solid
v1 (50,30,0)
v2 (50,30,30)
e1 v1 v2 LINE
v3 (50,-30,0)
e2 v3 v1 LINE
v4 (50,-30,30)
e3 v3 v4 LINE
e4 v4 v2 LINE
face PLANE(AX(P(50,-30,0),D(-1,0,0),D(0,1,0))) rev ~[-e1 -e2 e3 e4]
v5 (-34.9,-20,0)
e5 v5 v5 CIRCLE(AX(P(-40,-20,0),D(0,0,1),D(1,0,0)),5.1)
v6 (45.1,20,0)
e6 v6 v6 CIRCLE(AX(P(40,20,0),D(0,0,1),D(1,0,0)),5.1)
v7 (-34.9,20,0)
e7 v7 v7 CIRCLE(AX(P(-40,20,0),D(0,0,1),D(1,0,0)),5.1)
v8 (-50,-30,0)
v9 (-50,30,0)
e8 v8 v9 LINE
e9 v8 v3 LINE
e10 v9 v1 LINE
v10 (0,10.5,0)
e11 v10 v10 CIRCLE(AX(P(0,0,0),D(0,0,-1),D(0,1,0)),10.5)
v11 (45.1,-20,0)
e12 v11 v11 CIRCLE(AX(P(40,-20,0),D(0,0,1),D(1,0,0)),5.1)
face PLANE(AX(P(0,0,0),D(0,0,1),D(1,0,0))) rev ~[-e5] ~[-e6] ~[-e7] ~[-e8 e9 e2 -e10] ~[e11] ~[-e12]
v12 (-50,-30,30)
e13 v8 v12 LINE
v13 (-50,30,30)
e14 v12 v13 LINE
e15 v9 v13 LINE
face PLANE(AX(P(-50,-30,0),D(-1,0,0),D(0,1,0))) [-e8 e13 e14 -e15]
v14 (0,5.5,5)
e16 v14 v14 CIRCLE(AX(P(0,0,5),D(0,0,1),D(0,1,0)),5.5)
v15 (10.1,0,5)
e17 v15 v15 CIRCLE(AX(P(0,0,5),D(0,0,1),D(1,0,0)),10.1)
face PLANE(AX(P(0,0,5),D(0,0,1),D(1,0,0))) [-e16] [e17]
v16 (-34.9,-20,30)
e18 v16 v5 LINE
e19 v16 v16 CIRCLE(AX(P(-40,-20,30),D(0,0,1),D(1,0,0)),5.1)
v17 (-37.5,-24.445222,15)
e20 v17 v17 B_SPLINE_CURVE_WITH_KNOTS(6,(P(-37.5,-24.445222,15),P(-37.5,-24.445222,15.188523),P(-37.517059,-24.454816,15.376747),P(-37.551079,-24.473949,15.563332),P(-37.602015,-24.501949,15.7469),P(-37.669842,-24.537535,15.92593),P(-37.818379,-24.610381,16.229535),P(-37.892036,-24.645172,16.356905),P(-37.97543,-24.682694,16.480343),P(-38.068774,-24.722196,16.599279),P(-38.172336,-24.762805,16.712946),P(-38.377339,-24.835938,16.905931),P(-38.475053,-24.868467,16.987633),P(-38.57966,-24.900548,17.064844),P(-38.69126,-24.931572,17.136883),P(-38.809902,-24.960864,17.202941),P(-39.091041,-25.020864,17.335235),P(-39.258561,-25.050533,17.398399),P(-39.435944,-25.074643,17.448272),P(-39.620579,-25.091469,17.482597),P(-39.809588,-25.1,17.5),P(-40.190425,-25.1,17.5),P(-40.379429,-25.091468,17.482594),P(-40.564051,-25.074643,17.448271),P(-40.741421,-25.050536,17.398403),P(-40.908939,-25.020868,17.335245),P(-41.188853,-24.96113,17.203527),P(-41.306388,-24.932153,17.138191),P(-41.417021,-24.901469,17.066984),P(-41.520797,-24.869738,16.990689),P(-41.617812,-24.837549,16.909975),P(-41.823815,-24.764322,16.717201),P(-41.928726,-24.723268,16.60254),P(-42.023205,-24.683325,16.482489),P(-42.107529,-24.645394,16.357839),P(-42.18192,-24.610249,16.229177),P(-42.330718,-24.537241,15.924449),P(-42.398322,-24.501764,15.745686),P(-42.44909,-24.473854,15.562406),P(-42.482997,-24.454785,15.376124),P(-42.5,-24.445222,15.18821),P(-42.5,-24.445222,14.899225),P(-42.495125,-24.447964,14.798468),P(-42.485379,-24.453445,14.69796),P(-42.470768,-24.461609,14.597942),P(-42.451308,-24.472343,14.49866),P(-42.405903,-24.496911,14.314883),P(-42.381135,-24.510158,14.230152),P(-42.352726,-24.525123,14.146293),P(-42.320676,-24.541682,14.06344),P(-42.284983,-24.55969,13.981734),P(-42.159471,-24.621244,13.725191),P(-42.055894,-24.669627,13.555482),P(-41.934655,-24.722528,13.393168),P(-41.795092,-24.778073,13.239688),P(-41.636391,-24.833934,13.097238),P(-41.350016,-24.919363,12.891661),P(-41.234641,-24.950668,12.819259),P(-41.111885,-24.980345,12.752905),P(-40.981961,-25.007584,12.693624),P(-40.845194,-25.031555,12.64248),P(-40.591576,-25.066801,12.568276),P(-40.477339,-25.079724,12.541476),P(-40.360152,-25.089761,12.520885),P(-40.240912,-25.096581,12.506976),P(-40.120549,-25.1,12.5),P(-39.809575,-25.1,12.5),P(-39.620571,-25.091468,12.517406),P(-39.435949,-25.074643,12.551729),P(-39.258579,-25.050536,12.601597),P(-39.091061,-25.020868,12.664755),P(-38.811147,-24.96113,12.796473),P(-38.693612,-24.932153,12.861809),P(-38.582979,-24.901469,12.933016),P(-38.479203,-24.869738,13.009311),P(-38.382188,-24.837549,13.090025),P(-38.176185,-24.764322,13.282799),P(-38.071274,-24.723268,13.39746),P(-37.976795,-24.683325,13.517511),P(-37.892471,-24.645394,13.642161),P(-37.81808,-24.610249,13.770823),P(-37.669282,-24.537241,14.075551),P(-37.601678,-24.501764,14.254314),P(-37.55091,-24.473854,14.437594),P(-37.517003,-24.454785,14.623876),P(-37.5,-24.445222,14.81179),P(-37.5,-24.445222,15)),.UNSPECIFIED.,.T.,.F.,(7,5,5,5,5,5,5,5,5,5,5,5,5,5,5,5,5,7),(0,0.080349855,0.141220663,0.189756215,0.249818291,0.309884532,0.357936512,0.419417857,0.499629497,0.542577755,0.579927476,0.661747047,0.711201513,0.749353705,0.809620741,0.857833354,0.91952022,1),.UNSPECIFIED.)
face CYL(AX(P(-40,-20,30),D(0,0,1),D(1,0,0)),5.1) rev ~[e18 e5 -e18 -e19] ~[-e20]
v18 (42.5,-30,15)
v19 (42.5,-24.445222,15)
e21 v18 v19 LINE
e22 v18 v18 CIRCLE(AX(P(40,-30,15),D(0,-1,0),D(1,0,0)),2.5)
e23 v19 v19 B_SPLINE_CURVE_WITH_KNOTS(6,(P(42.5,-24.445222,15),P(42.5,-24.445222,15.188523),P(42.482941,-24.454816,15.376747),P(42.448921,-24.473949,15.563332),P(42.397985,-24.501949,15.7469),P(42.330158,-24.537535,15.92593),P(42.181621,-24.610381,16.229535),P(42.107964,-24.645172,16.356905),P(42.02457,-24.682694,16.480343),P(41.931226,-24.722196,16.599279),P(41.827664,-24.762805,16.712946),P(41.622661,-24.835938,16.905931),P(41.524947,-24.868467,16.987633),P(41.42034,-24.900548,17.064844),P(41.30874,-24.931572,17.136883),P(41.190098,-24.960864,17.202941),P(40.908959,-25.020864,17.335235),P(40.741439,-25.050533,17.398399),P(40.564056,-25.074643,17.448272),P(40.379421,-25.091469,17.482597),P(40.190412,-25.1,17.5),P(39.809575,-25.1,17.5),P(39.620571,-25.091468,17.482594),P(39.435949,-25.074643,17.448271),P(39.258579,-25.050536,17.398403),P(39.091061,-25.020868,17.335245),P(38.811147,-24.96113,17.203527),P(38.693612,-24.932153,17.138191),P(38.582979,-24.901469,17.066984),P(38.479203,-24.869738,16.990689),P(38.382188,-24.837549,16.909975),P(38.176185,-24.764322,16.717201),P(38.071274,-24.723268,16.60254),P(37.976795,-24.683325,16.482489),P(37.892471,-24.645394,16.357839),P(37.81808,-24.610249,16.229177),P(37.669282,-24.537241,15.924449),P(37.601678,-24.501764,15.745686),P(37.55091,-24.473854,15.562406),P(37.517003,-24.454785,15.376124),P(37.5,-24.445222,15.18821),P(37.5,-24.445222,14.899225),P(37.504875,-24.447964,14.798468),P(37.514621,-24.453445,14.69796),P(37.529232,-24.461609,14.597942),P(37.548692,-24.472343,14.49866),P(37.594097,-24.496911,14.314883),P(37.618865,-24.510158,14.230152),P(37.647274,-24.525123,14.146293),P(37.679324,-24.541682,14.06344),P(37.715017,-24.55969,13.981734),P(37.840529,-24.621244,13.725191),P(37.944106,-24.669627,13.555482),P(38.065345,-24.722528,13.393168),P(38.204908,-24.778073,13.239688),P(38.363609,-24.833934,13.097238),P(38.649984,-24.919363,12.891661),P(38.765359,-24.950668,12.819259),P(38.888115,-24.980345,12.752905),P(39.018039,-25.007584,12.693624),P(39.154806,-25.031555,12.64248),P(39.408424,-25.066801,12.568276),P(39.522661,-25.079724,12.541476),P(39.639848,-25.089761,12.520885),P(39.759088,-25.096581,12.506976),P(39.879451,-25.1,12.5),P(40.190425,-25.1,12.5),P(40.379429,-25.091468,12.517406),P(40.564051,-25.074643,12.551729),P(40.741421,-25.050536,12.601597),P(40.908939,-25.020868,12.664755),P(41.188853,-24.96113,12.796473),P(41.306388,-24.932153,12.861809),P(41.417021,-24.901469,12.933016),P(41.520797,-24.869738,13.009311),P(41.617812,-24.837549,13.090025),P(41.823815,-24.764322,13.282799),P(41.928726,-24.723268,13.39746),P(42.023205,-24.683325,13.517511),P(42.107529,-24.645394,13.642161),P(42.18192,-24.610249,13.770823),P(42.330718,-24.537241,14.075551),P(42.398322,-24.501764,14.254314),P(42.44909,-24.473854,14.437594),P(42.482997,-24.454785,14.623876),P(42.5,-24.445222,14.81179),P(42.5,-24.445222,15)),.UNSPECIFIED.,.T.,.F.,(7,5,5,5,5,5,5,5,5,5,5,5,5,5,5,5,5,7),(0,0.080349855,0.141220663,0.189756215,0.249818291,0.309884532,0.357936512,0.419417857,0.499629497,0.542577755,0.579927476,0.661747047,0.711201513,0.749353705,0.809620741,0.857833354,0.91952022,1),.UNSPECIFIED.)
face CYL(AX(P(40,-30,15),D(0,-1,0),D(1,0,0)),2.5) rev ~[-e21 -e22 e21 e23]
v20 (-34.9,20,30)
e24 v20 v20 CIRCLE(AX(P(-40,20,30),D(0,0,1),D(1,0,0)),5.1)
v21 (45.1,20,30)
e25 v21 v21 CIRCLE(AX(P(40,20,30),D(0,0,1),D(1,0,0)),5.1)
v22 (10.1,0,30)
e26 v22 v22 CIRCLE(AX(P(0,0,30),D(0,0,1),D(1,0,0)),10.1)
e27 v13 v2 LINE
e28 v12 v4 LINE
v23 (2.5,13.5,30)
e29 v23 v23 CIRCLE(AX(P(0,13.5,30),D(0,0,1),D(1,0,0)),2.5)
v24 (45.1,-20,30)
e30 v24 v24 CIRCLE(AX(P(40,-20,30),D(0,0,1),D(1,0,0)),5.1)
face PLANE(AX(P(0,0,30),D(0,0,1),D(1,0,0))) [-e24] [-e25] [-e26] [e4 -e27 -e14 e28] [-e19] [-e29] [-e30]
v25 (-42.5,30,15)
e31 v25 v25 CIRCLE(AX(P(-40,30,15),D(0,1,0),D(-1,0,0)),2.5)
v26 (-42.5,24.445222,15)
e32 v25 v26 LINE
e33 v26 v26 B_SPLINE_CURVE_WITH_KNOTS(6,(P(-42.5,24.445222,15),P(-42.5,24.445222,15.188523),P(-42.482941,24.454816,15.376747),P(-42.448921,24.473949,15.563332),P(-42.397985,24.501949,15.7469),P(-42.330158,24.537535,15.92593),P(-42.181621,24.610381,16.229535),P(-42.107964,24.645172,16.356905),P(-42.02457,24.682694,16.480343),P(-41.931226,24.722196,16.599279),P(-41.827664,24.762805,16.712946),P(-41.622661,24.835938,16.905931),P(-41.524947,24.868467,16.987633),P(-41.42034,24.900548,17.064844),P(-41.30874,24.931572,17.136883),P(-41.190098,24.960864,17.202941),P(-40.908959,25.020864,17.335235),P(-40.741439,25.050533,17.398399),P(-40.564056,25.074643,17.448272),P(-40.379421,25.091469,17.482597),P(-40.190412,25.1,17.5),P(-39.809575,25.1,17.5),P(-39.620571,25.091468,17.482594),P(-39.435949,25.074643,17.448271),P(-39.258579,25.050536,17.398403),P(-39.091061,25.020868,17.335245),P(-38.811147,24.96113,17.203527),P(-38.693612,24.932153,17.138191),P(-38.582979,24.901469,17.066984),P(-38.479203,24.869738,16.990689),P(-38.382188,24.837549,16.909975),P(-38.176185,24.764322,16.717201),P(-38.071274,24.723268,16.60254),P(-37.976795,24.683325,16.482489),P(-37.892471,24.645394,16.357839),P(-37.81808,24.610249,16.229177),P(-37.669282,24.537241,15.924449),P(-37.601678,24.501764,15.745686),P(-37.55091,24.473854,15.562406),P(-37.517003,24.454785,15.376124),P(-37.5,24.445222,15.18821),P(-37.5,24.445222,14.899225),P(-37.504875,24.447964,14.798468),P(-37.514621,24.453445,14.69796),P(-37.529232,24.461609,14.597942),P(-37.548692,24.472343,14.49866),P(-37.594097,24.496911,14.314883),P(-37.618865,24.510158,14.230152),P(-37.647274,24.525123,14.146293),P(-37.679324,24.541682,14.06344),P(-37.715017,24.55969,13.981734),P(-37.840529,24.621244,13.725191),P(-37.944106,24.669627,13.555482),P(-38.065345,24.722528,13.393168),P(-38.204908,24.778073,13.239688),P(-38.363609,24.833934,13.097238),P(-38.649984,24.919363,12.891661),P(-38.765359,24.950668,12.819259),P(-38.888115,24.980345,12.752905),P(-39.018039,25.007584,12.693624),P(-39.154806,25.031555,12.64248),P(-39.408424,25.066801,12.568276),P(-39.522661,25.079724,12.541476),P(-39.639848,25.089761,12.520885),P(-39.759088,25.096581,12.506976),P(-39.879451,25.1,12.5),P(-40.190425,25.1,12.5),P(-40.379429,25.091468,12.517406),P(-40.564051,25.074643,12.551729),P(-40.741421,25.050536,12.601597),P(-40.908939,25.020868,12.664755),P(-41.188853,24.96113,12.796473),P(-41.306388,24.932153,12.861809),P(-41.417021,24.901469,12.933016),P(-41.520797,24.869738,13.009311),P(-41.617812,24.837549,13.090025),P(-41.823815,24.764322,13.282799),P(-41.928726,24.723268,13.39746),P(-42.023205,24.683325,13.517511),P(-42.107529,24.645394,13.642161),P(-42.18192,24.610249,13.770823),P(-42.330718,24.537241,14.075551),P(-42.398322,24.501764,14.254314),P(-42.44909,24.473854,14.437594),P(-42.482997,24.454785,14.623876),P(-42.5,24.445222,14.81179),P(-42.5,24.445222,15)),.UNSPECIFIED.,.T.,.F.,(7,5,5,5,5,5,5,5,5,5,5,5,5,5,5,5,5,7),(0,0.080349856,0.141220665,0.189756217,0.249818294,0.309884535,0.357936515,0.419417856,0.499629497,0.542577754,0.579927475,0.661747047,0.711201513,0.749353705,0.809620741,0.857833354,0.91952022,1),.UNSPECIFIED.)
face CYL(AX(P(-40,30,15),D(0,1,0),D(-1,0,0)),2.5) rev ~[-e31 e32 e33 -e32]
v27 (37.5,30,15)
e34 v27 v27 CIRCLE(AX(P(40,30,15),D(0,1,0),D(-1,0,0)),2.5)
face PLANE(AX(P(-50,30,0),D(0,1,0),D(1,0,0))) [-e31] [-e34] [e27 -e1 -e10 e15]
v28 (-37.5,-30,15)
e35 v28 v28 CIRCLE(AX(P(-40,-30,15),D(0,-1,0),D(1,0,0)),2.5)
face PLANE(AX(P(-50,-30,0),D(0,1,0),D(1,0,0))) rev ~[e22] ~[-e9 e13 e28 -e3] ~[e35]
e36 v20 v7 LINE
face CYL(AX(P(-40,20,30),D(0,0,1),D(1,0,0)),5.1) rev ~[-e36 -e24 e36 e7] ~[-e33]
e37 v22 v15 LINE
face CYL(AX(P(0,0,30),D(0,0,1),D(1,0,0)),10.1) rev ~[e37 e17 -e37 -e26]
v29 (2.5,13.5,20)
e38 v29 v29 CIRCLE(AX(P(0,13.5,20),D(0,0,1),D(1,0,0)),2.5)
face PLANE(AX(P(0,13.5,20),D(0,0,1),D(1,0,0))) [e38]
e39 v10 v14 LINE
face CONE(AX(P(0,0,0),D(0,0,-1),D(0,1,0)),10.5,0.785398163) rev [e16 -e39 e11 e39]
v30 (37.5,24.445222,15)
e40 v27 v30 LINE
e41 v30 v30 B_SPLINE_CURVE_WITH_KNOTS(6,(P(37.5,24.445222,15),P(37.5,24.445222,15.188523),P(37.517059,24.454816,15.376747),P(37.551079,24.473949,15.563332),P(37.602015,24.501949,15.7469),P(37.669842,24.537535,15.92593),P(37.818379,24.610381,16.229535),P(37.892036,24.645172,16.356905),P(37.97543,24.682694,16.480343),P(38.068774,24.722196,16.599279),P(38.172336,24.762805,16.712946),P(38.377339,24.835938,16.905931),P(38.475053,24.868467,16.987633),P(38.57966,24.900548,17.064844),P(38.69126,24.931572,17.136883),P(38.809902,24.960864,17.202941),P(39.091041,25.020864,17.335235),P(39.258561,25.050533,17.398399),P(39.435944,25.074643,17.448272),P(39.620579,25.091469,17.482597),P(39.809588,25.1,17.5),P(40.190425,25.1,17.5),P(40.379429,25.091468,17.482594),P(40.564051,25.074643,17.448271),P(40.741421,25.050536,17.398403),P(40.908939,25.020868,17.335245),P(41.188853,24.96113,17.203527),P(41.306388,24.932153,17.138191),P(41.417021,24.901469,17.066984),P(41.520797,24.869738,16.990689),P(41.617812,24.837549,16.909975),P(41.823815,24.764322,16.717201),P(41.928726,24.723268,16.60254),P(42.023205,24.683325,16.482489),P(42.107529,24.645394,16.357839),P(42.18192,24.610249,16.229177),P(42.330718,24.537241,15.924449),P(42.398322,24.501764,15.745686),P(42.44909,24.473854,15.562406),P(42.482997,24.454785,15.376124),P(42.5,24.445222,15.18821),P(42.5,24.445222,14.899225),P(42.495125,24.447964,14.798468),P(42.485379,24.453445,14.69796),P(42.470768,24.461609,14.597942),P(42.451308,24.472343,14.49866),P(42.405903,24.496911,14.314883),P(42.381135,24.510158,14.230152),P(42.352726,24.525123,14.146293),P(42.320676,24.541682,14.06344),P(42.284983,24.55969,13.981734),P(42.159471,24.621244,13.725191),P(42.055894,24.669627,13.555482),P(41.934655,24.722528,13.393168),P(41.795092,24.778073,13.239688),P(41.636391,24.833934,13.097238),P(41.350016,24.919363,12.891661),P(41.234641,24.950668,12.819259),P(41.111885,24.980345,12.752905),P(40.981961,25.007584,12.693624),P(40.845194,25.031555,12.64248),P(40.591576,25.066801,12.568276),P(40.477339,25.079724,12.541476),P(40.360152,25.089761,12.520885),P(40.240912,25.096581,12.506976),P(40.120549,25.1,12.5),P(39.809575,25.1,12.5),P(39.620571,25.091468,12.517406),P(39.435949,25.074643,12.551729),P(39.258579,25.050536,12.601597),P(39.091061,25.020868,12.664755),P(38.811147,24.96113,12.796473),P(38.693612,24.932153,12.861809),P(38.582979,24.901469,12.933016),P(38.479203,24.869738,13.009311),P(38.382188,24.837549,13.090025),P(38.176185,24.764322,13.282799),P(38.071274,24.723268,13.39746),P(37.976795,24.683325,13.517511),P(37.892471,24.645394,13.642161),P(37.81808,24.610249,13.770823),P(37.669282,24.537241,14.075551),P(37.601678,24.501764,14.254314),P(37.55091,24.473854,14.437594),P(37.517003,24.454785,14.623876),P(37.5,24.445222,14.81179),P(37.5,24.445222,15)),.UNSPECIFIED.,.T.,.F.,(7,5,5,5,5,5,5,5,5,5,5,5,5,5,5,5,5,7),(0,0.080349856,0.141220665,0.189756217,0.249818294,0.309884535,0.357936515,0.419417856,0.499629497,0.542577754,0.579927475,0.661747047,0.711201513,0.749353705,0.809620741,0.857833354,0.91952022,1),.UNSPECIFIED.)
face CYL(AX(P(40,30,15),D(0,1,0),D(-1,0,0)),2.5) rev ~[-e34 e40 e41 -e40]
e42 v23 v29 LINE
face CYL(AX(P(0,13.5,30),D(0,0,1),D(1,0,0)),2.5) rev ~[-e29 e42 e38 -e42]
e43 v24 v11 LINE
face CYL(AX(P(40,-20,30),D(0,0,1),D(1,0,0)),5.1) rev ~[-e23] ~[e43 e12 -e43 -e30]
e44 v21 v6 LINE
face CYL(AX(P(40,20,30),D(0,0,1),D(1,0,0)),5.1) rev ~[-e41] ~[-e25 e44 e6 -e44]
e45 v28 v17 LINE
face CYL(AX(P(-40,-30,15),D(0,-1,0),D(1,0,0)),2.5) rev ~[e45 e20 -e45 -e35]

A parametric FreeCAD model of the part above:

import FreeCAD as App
import Part
import Sketcher
from FreeCAD import Vector
Q = App.Units.Quantity


def add_polygon(sketch, points):
    """Adds a closed chain of lines whose ends are joined by coincident constraints."""
    first, n = sketch.GeometryCount, len(points)
    for a, b in zip(points, points[1:] + points[:1]):
        sketch.addGeometry(Part.LineSegment(App.Vector(*a, 0), App.Vector(*b, 0)), False)
    for i in range(n):
        sketch.addConstraint(Sketcher.Constraint("Coincident", first + i, 2, first + (i + 1) % n, 1))

doc = App.newDocument("Part")
body = doc.addObject("PartDesign::Body", "Body")

# Sketch on XY plane
sketch1 = doc.addObject("Sketcher::SketchObject", "Sketch")
body.addObject(sketch1)
sketch1.AttachmentSupport = (doc.XY_Plane, [""])
sketch1.MapMode = "FlatFace"
add_polygon(sketch1, [(-50, 30), (-50, -30), (50, -30), (50, 30)])  # lines 0-3
sketch1.addConstraint([
    Sketcher.Constraint("Vertical", 0),
    Sketcher.Constraint("Horizontal", 1),
    Sketcher.Constraint("Vertical", 2),
    Sketcher.Constraint("Horizontal", 3),
    Sketcher.Constraint("Symmetric", 0, 2, 2, 2, -1, 1),
    Sketcher.Constraint("DistanceX", 1, 1, 1, 2, Q("100 mm")),
    Sketcher.Constraint("DistanceY", 0, 2, 0, 1, Q("60 mm")),
])
pad1 = doc.addObject("PartDesign::Pad", "Pad")
body.addObject(pad1)
pad1.Profile = sketch1
pad1.Length = 30

# Sketch on XY plane
sketch2 = doc.addObject("Sketcher::SketchObject", "Sketch001")
body.addObject(sketch2)
sketch2.AttachmentSupport = (doc.XY_Plane, [""])
sketch2.MapMode = "FlatFace"
sketch2.AttachmentOffset = App.Placement(Vector(0, 0, 30), App.Rotation())
sketch2.addGeometry(Part.Circle(Vector(0, 0, 0), Vector(0, 0, 1), 10), False)
sketch2.addConstraint([
    Sketcher.Constraint("Coincident", 0, 3, -1, 1),
    Sketcher.Constraint("Diameter", 0, Q("20.2 mm")),
])
pocket1 = doc.addObject("PartDesign::Pocket", "Pocket")
body.addObject(pocket1)
pocket1.Profile = sketch2
pocket1.Length = 25

# Sketch on XY plane
sketch3 = doc.addObject("Sketcher::SketchObject", "Sketch002")
body.addObject(sketch3)
sketch3.AttachmentSupport = (doc.XY_Plane, [""])
sketch3.MapMode = "FlatFace"
sketch3.AttachmentOffset = App.Placement(Vector(0, 0, 30), App.Rotation())
sketch3.addGeometry([
    Part.Circle(Vector(-40, 20, 0), Vector(0, 0, 1), 5),
    Part.Circle(Vector(-40, -20, 0), Vector(0, 0, 1), 5),
    Part.Circle(Vector(40, 20, 0), Vector(0, 0, 1), 5),
    Part.Circle(Vector(40, -20, 0), Vector(0, 0, 1), 5),
], False)
sketch3.addConstraint([
    Sketcher.Constraint("Equal", 0, 1),
    Sketcher.Constraint("Equal", 1, 2),
    Sketcher.Constraint("Equal", 2, 3),
    Sketcher.Constraint("Symmetric", 1, 3, 2, 3, -1, 1),
    Sketcher.Constraint("Symmetric", 0, 3, 3, 3, -1, 1),
    Sketcher.Constraint("Symmetric", 0, 3, 2, 3, -2),
    Sketcher.Constraint("Diameter", 0, Q("10.2 mm")),
    Sketcher.Constraint("DistanceX", 0, 3, -1, 1, Q("40 mm")),
    Sketcher.Constraint("DistanceY", -1, 1, 0, 3, Q("20 mm")),
])
pocket2 = doc.addObject("PartDesign::Pocket", "Pocket001")
body.addObject(pocket2)
pocket2.Profile = sketch3
pocket2.Type = "ThroughAll"

# Sketch on YZ plane
sketch4 = doc.addObject("Sketcher::SketchObject", "Sketch003")
body.addObject(sketch4)
sketch4.AttachmentSupport = (doc.YZ_Plane, [""])
sketch4.MapMode = "FlatFace"
add_polygon(sketch4, [(0, 10), (0, 0), (10, 0)])  # lines 0-2
sketch4.addConstraint([
    Sketcher.Constraint("Vertical", 0),
    Sketcher.Constraint("Horizontal", 1),
    Sketcher.Constraint("Coincident", 0, 2, -1, 1),
    Sketcher.Constraint("Equal", 1, 0),
    Sketcher.Constraint("DistanceX", 1, 1, 1, 2, Q("10.5 mm")),
])
groove = doc.addObject("PartDesign::Groove", "Groove")
body.addObject(groove)
groove.Profile = sketch4
groove.ReferenceAxis = (sketch4, ["V_Axis"])
groove.Angle = 360

# Sketch on XZ plane
sketch5 = doc.addObject("Sketcher::SketchObject", "Sketch004")
body.addObject(sketch5)
sketch5.AttachmentSupport = (doc.XZ_Plane, [""])
sketch5.MapMode = "FlatFace"
sketch5.AttachmentOffset = App.Placement(Vector(0, 0, 30), App.Rotation())
sketch5.addGeometry([
    Part.Circle(Vector(-40, 15, 0), Vector(0, 0, 1), 2.5),
    Part.Circle(Vector(40, 15, 0), Vector(0, 0, 1), 2.5),
], False)
sketch5.addConstraint([
    Sketcher.Constraint("Equal", 0, 1),
    Sketcher.Constraint("Symmetric", 0, 3, 1, 3, -2),
    Sketcher.Constraint("Diameter", 0, Q("5 mm")),
    Sketcher.Constraint("DistanceX", 0, 3, -1, 1, Q("40 mm")),
    Sketcher.Constraint("DistanceY", -1, 1, 0, 3, Q("15 mm")),
])
pocket3 = doc.addObject("PartDesign::Pocket", "Pocket002")
body.addObject(pocket3)
pocket3.Profile = sketch5
pocket3.Length = 10

# Sketch on XZ plane
sketch6 = doc.addObject("Sketcher::SketchObject", "Sketch005")
body.addObject(sketch6)
sketch6.AttachmentSupport = (doc.XZ_Plane, [""])
sketch6.MapMode = "FlatFace"
sketch6.AttachmentOffset = App.Placement(Vector(0, 0, -30), App.Rotation())
sketch6.addGeometry([
    Part.Circle(Vector(40, 15, 0), Vector(0, 0, 1), 2.5),
    Part.Circle(Vector(-40, 15, 0), Vector(0, 0, 1), 2.5),
], False)
sketch6.addConstraint([
    Sketcher.Constraint("Equal", 0, 1),
    Sketcher.Constraint("Symmetric", 0, 3, 1, 3, -2),
    Sketcher.Constraint("Diameter", 0, Q("5 mm")),
    Sketcher.Constraint("DistanceX", -1, 1, 0, 3, Q("40 mm")),
    Sketcher.Constraint("DistanceY", -1, 1, 0, 3, Q("15 mm")),
])
pocket4 = doc.addObject("PartDesign::Pocket", "Pocket003")
body.addObject(pocket4)
pocket4.Profile = sketch6
pocket4.Length = 10
pocket4.Reversed = True

# Sketch on XY plane
sketch7 = doc.addObject("Sketcher::SketchObject", "Sketch006")
body.addObject(sketch7)
sketch7.AttachmentSupport = (doc.XY_Plane, [""])
sketch7.MapMode = "FlatFace"
sketch7.AttachmentOffset = App.Placement(Vector(0, 0, 30), App.Rotation())
sketch7.addGeometry(Part.Circle(Vector(0, 13.5, 0), Vector(0, 0, 1), 2.5), False)
sketch7.addConstraint([
    Sketcher.Constraint("PointOnObject", 0, 3, -2),
    Sketcher.Constraint("Diameter", 0, Q("5 mm")),
    Sketcher.Constraint("DistanceY", -1, 1, 0, 3, Q("13.5 mm")),
])
pocket5 = doc.addObject("PartDesign::Pocket", "Pocket004")
body.addObject(pocket5)
pocket5.Profile = sketch7
pocket5.Length = 10

doc.recompute()
